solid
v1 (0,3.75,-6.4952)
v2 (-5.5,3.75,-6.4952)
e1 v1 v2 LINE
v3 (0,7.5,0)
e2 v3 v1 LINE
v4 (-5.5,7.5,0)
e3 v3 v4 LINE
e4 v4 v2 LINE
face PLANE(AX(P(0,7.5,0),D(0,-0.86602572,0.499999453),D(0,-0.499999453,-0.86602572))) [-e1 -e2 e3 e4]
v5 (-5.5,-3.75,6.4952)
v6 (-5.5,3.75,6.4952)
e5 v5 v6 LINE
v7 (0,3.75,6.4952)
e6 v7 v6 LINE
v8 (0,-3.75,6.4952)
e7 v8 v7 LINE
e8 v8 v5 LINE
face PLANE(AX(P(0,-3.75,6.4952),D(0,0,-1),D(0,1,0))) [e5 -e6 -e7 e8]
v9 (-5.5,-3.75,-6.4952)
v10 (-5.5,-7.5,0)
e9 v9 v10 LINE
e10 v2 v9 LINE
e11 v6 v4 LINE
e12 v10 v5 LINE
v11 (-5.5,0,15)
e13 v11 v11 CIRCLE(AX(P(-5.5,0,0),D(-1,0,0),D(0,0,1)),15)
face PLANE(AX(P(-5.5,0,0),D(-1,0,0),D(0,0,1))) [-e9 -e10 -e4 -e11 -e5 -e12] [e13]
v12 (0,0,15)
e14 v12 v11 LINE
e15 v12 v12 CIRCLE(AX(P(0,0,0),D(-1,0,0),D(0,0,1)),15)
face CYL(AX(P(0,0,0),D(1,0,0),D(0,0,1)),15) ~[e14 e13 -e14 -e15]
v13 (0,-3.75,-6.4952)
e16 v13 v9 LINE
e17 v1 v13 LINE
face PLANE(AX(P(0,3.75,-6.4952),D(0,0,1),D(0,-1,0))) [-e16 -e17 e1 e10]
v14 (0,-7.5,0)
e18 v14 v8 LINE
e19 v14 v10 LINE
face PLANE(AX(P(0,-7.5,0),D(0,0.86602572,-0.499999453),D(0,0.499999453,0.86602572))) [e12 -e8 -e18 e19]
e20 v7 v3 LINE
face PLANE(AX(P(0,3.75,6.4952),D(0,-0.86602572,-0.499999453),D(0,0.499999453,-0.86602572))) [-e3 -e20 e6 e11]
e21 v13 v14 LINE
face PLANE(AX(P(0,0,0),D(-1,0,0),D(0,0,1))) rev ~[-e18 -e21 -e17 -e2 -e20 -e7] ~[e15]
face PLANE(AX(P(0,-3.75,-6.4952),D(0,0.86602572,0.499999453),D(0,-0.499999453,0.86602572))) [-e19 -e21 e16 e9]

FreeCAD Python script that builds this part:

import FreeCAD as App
import Part
import Sketcher
Q = App.Units.Quantity


def add_polygon(sketch, points):
    """Adds a closed chain of lines whose ends are joined by coincident constraints."""
    first, n = sketch.GeometryCount, len(points)
    for a, b in zip(points, points[1:] + points[:1]):
        sketch.addGeometry(Part.LineSegment(App.Vector(*a, 0), App.Vector(*b, 0)), False)
    for i in range(n):
        sketch.addConstraint(Sketcher.Constraint("Coincident", first + i, 2, first + (i + 1) % n, 1))

doc = App.newDocument("Part")
params = doc.addObject("Spreadsheet::Sheet", "Params")
for row, (alias, value) in enumerate([
    ("sketch1_diameter", "30 mm"),
    ("sketch1_width", "7.5 mm"),
    ("pad1_length", "5.5 mm"),
], start=1):
    params.set(f"A{row}", alias)
    params.set(f"B{row}", "=" + value)
    params.setAlias(f"B{row}", alias)

body = doc.addObject("PartDesign::Body", "Body")

sketch1 = body.newObject("Sketcher::SketchObject", "Sketch")
sketch1.AttachmentSupport = (doc.getObject("YZ_Plane"), [""])
sketch1.MapMode = "FlatFace"
sketch1.addGeometry(Part.Circle(App.Vector(0, 0, 0), App.Vector(0, 0, 1), 15), False)
add_polygon(sketch1, [(-3.75, -6.4952), (3.75, -6.4952), (7.5, 0), (3.75, 6.4952), (-3.75, 6.4952), (-7.5, 0)])
sketch1.addConstraint(Sketcher.Constraint("Horizontal", 1))
sketch1.addConstraint(Sketcher.Constraint("Horizontal", 4))
sketch1.addConstraint(Sketcher.Constraint("Coincident", 0, 3, -1, 1))
sketch1.addConstraint(Sketcher.Constraint("Symmetric", 1, 2, 4, 2, -1, 1))
sketch1.addConstraint(Sketcher.Constraint("Symmetric", 2, 2, 5, 2, -1, 1))
sketch1.addConstraint(Sketcher.Constraint("PointOnObject", 2, 2, -1))
sketch1.addConstraint(Sketcher.Constraint("Parallel", 3, 6))
sketch1.addConstraint(Sketcher.Constraint("Vertical", 1, 2, 3, 2))
sketch1.addConstraint(Sketcher.Constraint("Diameter", 0, Q("30 mm")))
sketch1.addConstraint(Sketcher.Constraint("Angle", 2, Q("60 deg")))
sketch1.addConstraint(Sketcher.Constraint("DistanceX", 1, 1, 1, 2, Q("7.5 mm")))
sketch1.addConstraint(Sketcher.Constraint("DistanceX", 5, 2, 2, 2, Q("15 mm")))
sketch1.setExpression("Constraints[14]", "Params.sketch1_diameter")
sketch1.setExpression("Constraints[16]", "Params.sketch1_width")
pad1 = body.newObject("PartDesign::Pad", "Pad")
pad1.Profile = sketch1
pad1.setExpression("Length", "Params.pad1_length")
pad1.Reversed = True

doc.recompute()
